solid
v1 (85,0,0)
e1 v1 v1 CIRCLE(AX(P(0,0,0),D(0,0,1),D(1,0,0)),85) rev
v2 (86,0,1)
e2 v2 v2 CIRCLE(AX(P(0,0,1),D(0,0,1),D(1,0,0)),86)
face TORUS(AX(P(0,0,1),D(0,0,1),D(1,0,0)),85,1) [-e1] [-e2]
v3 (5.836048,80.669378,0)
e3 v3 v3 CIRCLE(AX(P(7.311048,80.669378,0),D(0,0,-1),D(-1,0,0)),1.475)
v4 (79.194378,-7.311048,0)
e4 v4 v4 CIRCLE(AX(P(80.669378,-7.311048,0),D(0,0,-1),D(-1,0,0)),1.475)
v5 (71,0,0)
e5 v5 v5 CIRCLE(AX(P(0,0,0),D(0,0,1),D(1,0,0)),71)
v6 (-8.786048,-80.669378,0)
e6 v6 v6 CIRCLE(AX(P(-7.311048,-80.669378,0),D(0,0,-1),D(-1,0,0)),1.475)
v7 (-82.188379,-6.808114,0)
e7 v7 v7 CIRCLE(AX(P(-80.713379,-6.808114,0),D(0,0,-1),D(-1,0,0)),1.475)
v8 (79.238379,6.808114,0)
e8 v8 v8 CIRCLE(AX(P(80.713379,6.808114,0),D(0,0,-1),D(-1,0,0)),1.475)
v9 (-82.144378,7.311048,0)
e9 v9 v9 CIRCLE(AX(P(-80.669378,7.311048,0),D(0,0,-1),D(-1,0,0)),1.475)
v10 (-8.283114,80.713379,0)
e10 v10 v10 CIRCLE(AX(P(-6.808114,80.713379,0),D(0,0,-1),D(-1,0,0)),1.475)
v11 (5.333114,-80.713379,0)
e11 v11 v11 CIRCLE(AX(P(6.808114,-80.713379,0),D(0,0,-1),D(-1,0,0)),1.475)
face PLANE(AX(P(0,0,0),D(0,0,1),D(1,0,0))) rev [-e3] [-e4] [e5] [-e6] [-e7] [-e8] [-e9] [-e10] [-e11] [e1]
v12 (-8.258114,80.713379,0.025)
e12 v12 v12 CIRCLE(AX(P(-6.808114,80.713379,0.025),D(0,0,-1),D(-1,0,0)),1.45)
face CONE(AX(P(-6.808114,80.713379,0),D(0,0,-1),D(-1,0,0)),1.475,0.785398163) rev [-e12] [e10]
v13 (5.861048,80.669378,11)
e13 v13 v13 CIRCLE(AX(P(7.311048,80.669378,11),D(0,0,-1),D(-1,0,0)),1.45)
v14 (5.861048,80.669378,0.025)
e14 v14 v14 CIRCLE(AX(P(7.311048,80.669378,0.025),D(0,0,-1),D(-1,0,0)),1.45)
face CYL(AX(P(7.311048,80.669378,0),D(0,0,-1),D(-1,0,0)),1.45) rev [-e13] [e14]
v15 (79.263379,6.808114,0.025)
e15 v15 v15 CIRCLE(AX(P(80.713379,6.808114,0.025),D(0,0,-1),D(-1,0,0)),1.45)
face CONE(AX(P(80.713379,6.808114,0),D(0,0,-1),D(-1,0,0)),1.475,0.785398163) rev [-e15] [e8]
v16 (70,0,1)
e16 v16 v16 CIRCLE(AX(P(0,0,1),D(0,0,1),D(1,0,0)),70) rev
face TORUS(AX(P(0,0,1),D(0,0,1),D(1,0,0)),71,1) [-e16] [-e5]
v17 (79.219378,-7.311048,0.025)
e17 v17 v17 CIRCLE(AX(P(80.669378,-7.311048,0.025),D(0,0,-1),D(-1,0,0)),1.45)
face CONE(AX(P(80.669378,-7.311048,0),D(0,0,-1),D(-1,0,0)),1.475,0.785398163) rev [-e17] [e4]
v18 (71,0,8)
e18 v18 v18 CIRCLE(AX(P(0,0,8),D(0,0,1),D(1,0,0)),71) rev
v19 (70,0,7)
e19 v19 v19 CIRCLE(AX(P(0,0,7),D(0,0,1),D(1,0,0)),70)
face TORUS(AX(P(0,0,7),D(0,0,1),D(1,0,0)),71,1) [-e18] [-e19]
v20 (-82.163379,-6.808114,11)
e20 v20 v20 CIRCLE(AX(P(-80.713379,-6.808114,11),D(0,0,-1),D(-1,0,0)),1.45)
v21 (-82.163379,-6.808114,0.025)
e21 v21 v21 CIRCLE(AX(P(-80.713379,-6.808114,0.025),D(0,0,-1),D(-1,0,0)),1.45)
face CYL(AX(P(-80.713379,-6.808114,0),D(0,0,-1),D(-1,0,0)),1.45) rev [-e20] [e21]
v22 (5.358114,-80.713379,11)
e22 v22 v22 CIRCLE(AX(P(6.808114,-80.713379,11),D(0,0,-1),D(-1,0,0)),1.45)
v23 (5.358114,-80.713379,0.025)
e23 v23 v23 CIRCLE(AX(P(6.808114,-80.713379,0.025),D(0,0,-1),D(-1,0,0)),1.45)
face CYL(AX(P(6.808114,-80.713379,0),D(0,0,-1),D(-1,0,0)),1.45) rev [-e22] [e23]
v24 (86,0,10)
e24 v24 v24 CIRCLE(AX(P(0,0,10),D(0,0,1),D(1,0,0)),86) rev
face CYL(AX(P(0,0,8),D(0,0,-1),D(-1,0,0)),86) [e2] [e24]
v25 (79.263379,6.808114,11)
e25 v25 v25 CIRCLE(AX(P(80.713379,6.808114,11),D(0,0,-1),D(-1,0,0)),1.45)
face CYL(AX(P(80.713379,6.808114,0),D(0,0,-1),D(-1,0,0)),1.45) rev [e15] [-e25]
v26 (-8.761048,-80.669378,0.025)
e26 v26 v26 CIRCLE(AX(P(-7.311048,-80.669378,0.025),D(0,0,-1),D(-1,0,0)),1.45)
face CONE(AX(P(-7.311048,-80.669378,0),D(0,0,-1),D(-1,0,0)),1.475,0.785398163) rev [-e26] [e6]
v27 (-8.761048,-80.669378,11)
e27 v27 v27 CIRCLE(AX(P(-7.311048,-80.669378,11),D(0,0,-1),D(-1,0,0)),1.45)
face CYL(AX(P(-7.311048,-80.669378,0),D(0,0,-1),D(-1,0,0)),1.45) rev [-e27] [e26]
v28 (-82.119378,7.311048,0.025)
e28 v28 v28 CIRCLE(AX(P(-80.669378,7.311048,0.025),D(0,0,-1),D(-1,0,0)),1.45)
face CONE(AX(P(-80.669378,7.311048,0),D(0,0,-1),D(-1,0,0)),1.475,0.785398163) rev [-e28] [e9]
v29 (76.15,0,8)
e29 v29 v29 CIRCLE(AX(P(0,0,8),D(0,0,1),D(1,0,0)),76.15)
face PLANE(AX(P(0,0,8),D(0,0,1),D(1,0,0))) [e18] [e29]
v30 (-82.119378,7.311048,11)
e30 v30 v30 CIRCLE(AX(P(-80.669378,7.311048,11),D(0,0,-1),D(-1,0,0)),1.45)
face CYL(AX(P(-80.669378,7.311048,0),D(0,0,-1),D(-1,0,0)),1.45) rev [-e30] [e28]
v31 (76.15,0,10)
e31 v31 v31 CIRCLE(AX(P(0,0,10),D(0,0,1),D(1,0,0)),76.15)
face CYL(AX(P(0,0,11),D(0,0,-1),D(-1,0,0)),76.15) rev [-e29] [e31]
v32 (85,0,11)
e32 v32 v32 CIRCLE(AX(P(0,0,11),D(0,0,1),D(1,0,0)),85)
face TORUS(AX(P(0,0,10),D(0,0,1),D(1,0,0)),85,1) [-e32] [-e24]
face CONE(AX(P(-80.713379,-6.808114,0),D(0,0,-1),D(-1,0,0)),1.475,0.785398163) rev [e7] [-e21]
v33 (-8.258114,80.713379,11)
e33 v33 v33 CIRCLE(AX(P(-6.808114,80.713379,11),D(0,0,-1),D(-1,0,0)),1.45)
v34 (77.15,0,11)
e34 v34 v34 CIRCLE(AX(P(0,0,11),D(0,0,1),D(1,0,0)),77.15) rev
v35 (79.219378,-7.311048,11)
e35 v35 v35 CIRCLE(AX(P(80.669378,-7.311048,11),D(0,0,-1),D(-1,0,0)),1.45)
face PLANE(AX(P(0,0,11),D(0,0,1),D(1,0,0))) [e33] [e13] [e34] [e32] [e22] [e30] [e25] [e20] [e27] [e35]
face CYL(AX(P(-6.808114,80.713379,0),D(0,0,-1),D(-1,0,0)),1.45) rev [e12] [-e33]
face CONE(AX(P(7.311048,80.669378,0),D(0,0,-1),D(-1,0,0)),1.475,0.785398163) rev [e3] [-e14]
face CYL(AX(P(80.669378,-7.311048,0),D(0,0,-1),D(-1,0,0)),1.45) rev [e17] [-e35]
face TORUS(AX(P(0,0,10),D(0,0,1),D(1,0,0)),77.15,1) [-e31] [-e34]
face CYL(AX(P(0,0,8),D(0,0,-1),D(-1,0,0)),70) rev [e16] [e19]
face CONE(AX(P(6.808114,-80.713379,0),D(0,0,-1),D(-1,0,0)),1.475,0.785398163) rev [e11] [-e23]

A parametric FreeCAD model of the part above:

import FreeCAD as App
import Part
import Sketcher


def edges_at(feature, points):
    """Names of the edges that pass closest to the given points."""
    edges = feature.Shape.Edges
    near = lambda p: min(range(len(edges)), key=lambda i: edges[i].distToShape(Part.Vertex(*p))[0])
    return sorted({f"Edge{near(p) + 1}" for p in points})

doc = App.newDocument("Part")
body = doc.addObject("PartDesign::Body", "Body")

# Sketch on XY plane
sketch1 = body.newObject("Sketcher::SketchObject", "Sketch")
sketch1.AttachmentSupport = (doc.getObject("XY_Plane"), [""])
sketch1.MapMode = "FlatFace"
sketch1.addGeometry([
    Part.Circle(App.Vector(0, 0, 0), App.Vector(0, 0, 1), 86),
    Part.Circle(App.Vector(0, 0, 0), App.Vector(0, 0, 1), 70),
], False)
sketch1.addConstraint([
    Sketcher.Constraint("Coincident", 0, 3, -1, 1),
    Sketcher.Constraint("Coincident", 1, 3, -1, 1),
    Sketcher.Constraint("Diameter", 0, 172.0),
    Sketcher.Constraint("Diameter", 1, 140.0),
])
pad1 = body.newObject("PartDesign::Pad", "Pad")
pad1.Profile = sketch1
pad1.Length = 8

# Sketch on XY plane
sketch2 = body.newObject("Sketcher::SketchObject", "Sketch001")
sketch2.AttachmentSupport = (doc.getObject("XY_Plane"), [""])
sketch2.MapMode = "FlatFace"
sketch2.AttachmentOffset = App.Placement(App.Vector(0, 0, 8), App.Rotation())
sketch2.addGeometry([
    Part.Circle(App.Vector(0, 0, 0), App.Vector(0, 0, 1), 86),
    Part.Circle(App.Vector(0, 0, 0), App.Vector(0, 0, 1), 76),
], False)
sketch2.addConstraint([
    Sketcher.Constraint("Coincident", 0, 3, -1, 1),
    Sketcher.Constraint("Coincident", 1, 3, -1, 1),
    Sketcher.Constraint("Diameter", 0, 172.0),
    Sketcher.Constraint("Diameter", 1, 152.3),
])
pad2 = body.newObject("PartDesign::Pad", "Pad001")
pad2.Profile = sketch2
pad2.Length = 3
doc.recompute()

fillet = body.newObject("PartDesign::Fillet", "Fillet")
fillet.Base = (pad2, edges_at(pad2, [
    (-86, 0, 11),
    (-76.15, 0, 11),
    (-86, 0, 0),
    (-70, 0, 0),
    (-70, 0, 8),
]))
fillet.Radius = 1

# Sketch on XY plane
sketch3 = body.newObject("Sketcher::SketchObject", "Sketch002")
sketch3.AttachmentSupport = (doc.getObject("XY_Plane"), [""])
sketch3.MapMode = "FlatFace"
sketch3.addGeometry([
    Part.Circle(App.Vector(-6.8, 80.7, 0), App.Vector(0, 0, 1), 1.4),  # 0
    Part.Circle(App.Vector(7.3, 80.7, 0), App.Vector(0, 0, 1), 1.4),  # 1
    Part.Circle(App.Vector(-80.7, -6.8, 0), App.Vector(0, 0, 1), 1.4),  # 2
    Part.Circle(App.Vector(-80.7, 7.3, 0), App.Vector(0, 0, 1), 1.4),  # 3
    Part.Circle(App.Vector(6.8, -80.7, 0), App.Vector(0, 0, 1), 1.4),  # 4
    Part.Circle(App.Vector(-7.3, -80.7, 0), App.Vector(0, 0, 1), 1.4),  # 5
    Part.Circle(App.Vector(80.7, 6.8, 0), App.Vector(0, 0, 1), 1.4),  # 6
    Part.Circle(App.Vector(80.7, -7.3, 0), App.Vector(0, 0, 1), 1.4),  # 7
], False)
sketch3.addConstraint([
    Sketcher.Constraint("Equal", 0, 1),
    Sketcher.Constraint("Equal", 1, 2),
    Sketcher.Constraint("Equal", 2, 3),
    Sketcher.Constraint("Equal", 3, 4),
    Sketcher.Constraint("Equal", 4, 5),
    Sketcher.Constraint("Equal", 5, 6),
    Sketcher.Constraint("Equal", 6, 7),
    Sketcher.Constraint("Symmetric", 0, 3, 4, 3, -1, 1),
    Sketcher.Constraint("Symmetric", 1, 3, 5, 3, -1, 1),
    Sketcher.Constraint("Symmetric", 2, 3, 6, 3, -1, 1),
    Sketcher.Constraint("Symmetric", 3, 3, 7, 3, -1, 1),
    Sketcher.Constraint("Diameter", 0, 2.9),
    Sketcher.Constraint("DistanceY", 1, 3, 0, 3, 0.044001),
    Sketcher.Constraint("DistanceX", 2, 3, 3, 3, 0.044001),
    Sketcher.Constraint("DistanceY", -1, 1, 0, 3, 80.713379),
    Sketcher.Constraint("DistanceX", 2, 3, -1, 1, 80.713379),
    Sketcher.Constraint("DistanceX", 0, 3, 1, 3, 14.119162),
    Sketcher.Constraint("DistanceY", 2, 3, 3, 3, 14.119162),
    Sketcher.Constraint("DistanceY", 3, 3, 0, 3, 73.402331),
    Sketcher.Constraint("DistanceX", 0, 3, 4, 3, 13.616228),
])
doc.recompute()
hole = body.newObject("PartDesign::Hole", "Hole")
hole.Profile = sketch3
hole.ThreadType = "None"
hole.Diameter = 2.9
hole.DepthType = "ThroughAll"
hole.HoleCutType = "Countersink"
hole.HoleCutDiameter = 2.95
hole.HoleCutCountersinkAngle = 90
hole.Reversed = True

doc.recompute()
